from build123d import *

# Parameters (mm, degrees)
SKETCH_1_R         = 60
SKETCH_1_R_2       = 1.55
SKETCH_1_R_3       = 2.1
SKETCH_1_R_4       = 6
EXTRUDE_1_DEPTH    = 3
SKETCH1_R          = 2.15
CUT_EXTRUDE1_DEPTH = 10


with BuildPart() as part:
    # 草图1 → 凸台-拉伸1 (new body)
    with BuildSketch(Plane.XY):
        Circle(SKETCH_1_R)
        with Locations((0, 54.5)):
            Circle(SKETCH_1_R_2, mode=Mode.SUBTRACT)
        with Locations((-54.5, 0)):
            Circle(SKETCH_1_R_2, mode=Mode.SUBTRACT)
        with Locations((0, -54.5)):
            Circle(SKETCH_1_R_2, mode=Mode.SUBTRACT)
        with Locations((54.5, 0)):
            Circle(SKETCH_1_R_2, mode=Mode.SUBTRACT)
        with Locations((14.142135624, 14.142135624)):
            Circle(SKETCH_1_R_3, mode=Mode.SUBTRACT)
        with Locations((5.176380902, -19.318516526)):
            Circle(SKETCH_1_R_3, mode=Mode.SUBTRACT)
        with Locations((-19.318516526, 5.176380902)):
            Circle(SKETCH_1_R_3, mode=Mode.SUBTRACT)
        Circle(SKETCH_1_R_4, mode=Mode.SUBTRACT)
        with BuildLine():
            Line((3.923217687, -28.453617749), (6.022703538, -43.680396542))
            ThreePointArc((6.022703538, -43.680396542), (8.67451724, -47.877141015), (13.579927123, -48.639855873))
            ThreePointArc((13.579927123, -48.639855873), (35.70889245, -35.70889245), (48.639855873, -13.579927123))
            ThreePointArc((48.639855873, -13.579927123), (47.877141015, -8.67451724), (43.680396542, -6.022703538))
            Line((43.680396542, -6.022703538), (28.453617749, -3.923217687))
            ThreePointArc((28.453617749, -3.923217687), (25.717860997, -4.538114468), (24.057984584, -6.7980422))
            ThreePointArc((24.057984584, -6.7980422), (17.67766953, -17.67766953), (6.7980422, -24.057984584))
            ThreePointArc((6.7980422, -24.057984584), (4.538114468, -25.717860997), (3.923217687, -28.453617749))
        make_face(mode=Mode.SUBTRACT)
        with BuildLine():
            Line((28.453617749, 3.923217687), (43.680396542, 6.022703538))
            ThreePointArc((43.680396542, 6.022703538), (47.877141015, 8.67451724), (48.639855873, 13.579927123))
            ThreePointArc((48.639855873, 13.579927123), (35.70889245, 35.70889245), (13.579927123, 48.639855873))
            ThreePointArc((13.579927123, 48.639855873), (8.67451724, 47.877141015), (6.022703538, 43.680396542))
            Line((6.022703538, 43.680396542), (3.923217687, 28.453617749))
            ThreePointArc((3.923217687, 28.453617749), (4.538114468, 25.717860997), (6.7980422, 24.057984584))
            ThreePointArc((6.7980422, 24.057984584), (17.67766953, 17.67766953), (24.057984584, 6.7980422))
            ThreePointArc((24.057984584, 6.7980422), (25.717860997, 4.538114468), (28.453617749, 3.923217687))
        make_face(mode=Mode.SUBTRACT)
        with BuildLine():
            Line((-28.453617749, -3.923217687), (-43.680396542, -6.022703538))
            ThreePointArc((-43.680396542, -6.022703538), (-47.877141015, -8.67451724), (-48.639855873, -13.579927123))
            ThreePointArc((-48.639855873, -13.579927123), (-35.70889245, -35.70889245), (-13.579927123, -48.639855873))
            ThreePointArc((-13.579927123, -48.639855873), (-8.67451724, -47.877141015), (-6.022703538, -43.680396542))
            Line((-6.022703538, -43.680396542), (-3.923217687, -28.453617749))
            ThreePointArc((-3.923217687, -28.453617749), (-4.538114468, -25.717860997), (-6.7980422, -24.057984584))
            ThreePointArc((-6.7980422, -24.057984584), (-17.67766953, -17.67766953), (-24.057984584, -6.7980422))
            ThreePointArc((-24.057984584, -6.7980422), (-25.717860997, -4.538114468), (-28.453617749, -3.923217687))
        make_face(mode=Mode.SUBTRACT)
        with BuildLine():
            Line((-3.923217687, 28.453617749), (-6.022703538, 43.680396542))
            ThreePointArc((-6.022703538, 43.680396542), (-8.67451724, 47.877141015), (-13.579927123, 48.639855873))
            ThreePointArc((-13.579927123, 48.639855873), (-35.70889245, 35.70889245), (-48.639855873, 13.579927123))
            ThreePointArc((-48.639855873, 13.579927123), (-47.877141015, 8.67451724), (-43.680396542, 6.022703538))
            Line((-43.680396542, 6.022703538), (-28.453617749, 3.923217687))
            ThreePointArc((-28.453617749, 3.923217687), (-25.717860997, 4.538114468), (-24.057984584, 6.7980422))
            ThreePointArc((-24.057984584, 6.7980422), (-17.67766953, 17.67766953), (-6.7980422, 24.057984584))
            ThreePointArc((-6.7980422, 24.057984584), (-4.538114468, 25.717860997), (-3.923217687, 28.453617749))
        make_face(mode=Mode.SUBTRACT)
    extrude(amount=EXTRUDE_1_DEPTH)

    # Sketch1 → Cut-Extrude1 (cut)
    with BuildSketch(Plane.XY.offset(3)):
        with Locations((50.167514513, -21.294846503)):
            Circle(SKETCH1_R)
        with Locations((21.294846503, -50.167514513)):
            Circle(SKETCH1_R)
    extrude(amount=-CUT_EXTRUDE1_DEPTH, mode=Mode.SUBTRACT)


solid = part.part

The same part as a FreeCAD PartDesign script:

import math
import FreeCAD as App
import Part
import Sketcher
from FreeCAD import Vector
Q = App.Units.Quantity

doc = App.newDocument("Part")
body = doc.addObject("PartDesign::Body", "Body")

# Sketch on XY plane
sketch1 = body.newObject("Sketcher::SketchObject", "Sketch")
sketch1.AttachmentSupport = (doc.getObject("XY_Plane"), [""])
sketch1.MapMode = "FlatFace"
sketch1.addGeometry([
    Part.Circle(Vector(0, 0, 0), Vector(0, 0, 1), 60),  # 0
    Part.LineSegment(Vector(-43.7, -6, 0), Vector(-28.5, -3.9, 0)),  # 1
    Part.ArcOfCircle(Part.Circle(Vector(-27.9, -7.9, 0), Vector(0, 0, 1), 4), math.radians(16), math.radians(98)),  # 2
    Part.ArcOfCircle(Part.Circle(Vector(0, 0, 0), Vector(0, 0, 1), 25), math.radians(-164), math.radians(-106)),  # 3
    Part.ArcOfCircle(Part.Circle(Vector(-7.9, -27.9, 0), Vector(0, 0, 1), 4), math.radians(-8), math.radians(74)),  # 4
    Part.LineSegment(Vector(-3.9, -28.5, 0), Vector(-6, -43.7, 0)),  # 5
    Part.ArcOfCircle(Part.Circle(Vector(-12, -42.9, 0), Vector(0, 0, 1), 6), math.radians(-106), math.radians(-8)),  # 6
    Part.ArcOfCircle(Part.Circle(Vector(0, 0, 0), Vector(0, 0, 1), 50.5), math.radians(-164), math.radians(-106)),  # 7
    Part.ArcOfCircle(Part.Circle(Vector(-42.9, -12, 0), Vector(0, 0, 1), 6), math.radians(98), math.radians(196)),  # 8
    Part.Circle(Vector(0, -54.5, 0), Vector(0, 0, 1), 1.6),  # 9
    Part.Circle(Vector(5.2, -19.3, 0), Vector(0, 0, 1), 2.1),  # 10
    Part.LineSegment(Vector(6, -43.7, 0), Vector(3.9, -28.5, 0)),  # 11
    Part.ArcOfCircle(Part.Circle(Vector(7.9, -27.9, 0), Vector(0, 0, 1), 4), math.radians(106), math.radians(188)),  # 12
    Part.ArcOfCircle(Part.Circle(Vector(0, 0, 0), Vector(0, 0, 1), 25), math.radians(-74), math.radians(-16)),  # 13
    Part.ArcOfCircle(Part.Circle(Vector(27.9, -7.9, 0), Vector(0, 0, 1), 4), math.radians(82), math.radians(164)),  # 14
    Part.LineSegment(Vector(28.5, -3.9, 0), Vector(43.7, -6, 0)),  # 15
    Part.ArcOfCircle(Part.Circle(Vector(42.9, -12, 0), Vector(0, 0, 1), 6), math.radians(-16), math.radians(82)),  # 16
    Part.ArcOfCircle(Part.Circle(Vector(0, 0, 0), Vector(0, 0, 1), 50.5), math.radians(-74), math.radians(-16)),  # 17
    Part.ArcOfCircle(Part.Circle(Vector(12, -42.9, 0), Vector(0, 0, 1), 6), math.radians(-172), math.radians(-74)),  # 18
    Part.Circle(Vector(-54.5, 0, 0), Vector(0, 0, 1), 1.6),  # 19
    Part.Circle(Vector(-19.3, 5.2, 0), Vector(0, 0, 1), 2.1),  # 20
    Part.LineSegment(Vector(-6, 43.7, 0), Vector(-3.9, 28.5, 0)),  # 21
    Part.ArcOfCircle(Part.Circle(Vector(-7.9, 27.9, 0), Vector(0, 0, 1), 4), math.radians(-74), math.radians(8)),  # 22
    Part.ArcOfCircle(Part.Circle(Vector(0, 0, 0), Vector(0, 0, 1), 25), math.radians(106), math.radians(164)),  # 23
    Part.ArcOfCircle(Part.Circle(Vector(-27.9, 7.9, 0), Vector(0, 0, 1), 4), math.radians(-98), math.radians(-16)),  # 24
    Part.LineSegment(Vector(-28.5, 3.9, 0), Vector(-43.7, 6, 0)),  # 25
    Part.ArcOfCircle(Part.Circle(Vector(-42.9, 12, 0), Vector(0, 0, 1), 6), math.radians(164), math.radians(262)),  # 26
    Part.ArcOfCircle(Part.Circle(Vector(0, 0, 0), Vector(0, 0, 1), 50.5), math.radians(106), math.radians(164)),  # 27
    Part.ArcOfCircle(Part.Circle(Vector(-12, 42.9, 0), Vector(0, 0, 1), 6), math.radians(8), math.radians(106)),  # 28
    Part.Circle(Vector(0, 0, 0), Vector(0, 0, 1), 6),  # 29
    Part.Circle(Vector(14.1, 14.1, 0), Vector(0, 0, 1), 2.1),  # 30
    Part.LineSegment(Vector(43.7, 6, 0), Vector(28.5, 3.9, 0)),  # 31
    Part.ArcOfCircle(Part.Circle(Vector(27.9, 7.9, 0), Vector(0, 0, 1), 4), math.radians(-164), math.radians(-82)),  # 32
    Part.ArcOfCircle(Part.Circle(Vector(0, 0, 0), Vector(0, 0, 1), 25), math.radians(16), math.radians(74)),  # 33
    Part.ArcOfCircle(Part.Circle(Vector(7.9, 27.9, 0), Vector(0, 0, 1), 4), math.radians(172), math.radians(254)),  # 34
    Part.LineSegment(Vector(3.9, 28.5, 0), Vector(6, 43.7, 0)),  # 35
    Part.ArcOfCircle(Part.Circle(Vector(12, 42.9, 0), Vector(0, 0, 1), 6), math.radians(74), math.radians(172)),  # 36
    Part.ArcOfCircle(Part.Circle(Vector(0, 0, 0), Vector(0, 0, 1), 50.5), math.radians(16), math.radians(74)),  # 37
    Part.ArcOfCircle(Part.Circle(Vector(42.9, 12, 0), Vector(0, 0, 1), 6), math.radians(-82), math.radians(16)),  # 38
    Part.Circle(Vector(54.5, 0, 0), Vector(0, 0, 1), 1.6),  # 39
    Part.Circle(Vector(0, 54.5, 0), Vector(0, 0, 1), 1.6),  # 40
], False)
sketch1.addConstraint([
    Sketcher.Constraint("Tangent", 1, 2, 2, 2),
    Sketcher.Constraint("Tangent", 2, 1, 3, 1),
    Sketcher.Constraint("Tangent", 3, 2, 4, 2),
    Sketcher.Constraint("Tangent", 4, 1, 5, 1),
    Sketcher.Constraint("Tangent", 5, 2, 6, 2),
    Sketcher.Constraint("Tangent", 6, 1, 7, 2),
    Sketcher.Constraint("Tangent", 7, 1, 8, 2),
    Sketcher.Constraint("Tangent", 8, 1, 1, 1),
    Sketcher.Constraint("Tangent", 11, 2, 12, 2),
    Sketcher.Constraint("Tangent", 12, 1, 13, 1),
    Sketcher.Constraint("Tangent", 13, 2, 14, 2),
    Sketcher.Constraint("Tangent", 14, 1, 15, 1),
    Sketcher.Constraint("Tangent", 15, 2, 16, 2),
    Sketcher.Constraint("Tangent", 16, 1, 17, 2),
    Sketcher.Constraint("Tangent", 17, 1, 18, 2),
    Sketcher.Constraint("Tangent", 18, 1, 11, 1),
    Sketcher.Constraint("Tangent", 21, 2, 22, 2),
    Sketcher.Constraint("Tangent", 22, 1, 23, 1),
    Sketcher.Constraint("Tangent", 23, 2, 24, 2),
    Sketcher.Constraint("Tangent", 24, 1, 25, 1),
    Sketcher.Constraint("Tangent", 25, 2, 26, 2),
    Sketcher.Constraint("Tangent", 26, 1, 27, 2),
    Sketcher.Constraint("Tangent", 27, 1, 28, 2),
    Sketcher.Constraint("Tangent", 28, 1, 21, 1),
    Sketcher.Constraint("Tangent", 31, 2, 32, 2),
    Sketcher.Constraint("Tangent", 32, 1, 33, 1),
    Sketcher.Constraint("Tangent", 33, 2, 34, 2),
    Sketcher.Constraint("Tangent", 34, 1, 35, 1),
    Sketcher.Constraint("Tangent", 35, 2, 36, 2),
    Sketcher.Constraint("Tangent", 36, 1, 37, 2),
    Sketcher.Constraint("Tangent", 37, 1, 38, 2),
    Sketcher.Constraint("Tangent", 38, 1, 31, 1),
    Sketcher.Constraint("Coincident", 0, 3, -1, 1),
    Sketcher.Constraint("Coincident", 3, 3, -1, 1),
    Sketcher.Constraint("Coincident", 7, 3, -1, 1),
    Sketcher.Constraint("Coincident", 13, 3, -1, 1),
    Sketcher.Constraint("Coincident", 17, 3, -1, 1),
    Sketcher.Constraint("Coincident", 23, 3, -1, 1),
    Sketcher.Constraint("Coincident", 27, 3, -1, 1),
    Sketcher.Constraint("Coincident", 29, 3, -1, 1),
    Sketcher.Constraint("Coincident", 33, 3, -1, 1),
    Sketcher.Constraint("Coincident", 37, 3, -1, 1),
    Sketcher.Constraint("Equal", 2, 4),
    Sketcher.Constraint("Equal", 6, 8),
    Sketcher.Constraint("Equal", 4, 12),
    Sketcher.Constraint("Equal", 3, 13),
    Sketcher.Constraint("Equal", 12, 14),
    Sketcher.Constraint("Equal", 8, 16),
    Sketcher.Constraint("Equal", 7, 17),
    Sketcher.Constraint("Equal", 16, 18),
    Sketcher.Constraint("Equal", 9, 19),
    Sketcher.Constraint("Equal", 10, 20),
    Sketcher.Constraint("Equal", 14, 22),
    Sketcher.Constraint("Equal", 13, 23),
    Sketcher.Constraint("Equal", 22, 24),
    Sketcher.Constraint("Equal", 18, 26),
    Sketcher.Constraint("Equal", 17, 27),
    Sketcher.Constraint("Equal", 26, 28),
    Sketcher.Constraint("Equal", 28, 29),
    Sketcher.Constraint("Equal", 20, 30),
    Sketcher.Constraint("Equal", 24, 32),
    Sketcher.Constraint("Equal", 23, 33),
    Sketcher.Constraint("Equal", 32, 34),
    Sketcher.Constraint("Equal", 29, 36),
    Sketcher.Constraint("Equal", 27, 37),
    Sketcher.Constraint("Equal", 36, 38),
    Sketcher.Constraint("Equal", 19, 39),
    Sketcher.Constraint("Equal", 39, 40),
    Sketcher.Constraint("Symmetric", 19, 3, 39, 3, -1, 1),
    Sketcher.Constraint("Symmetric", 9, 3, 40, 3, -1, 1),
    Sketcher.Constraint("Symmetric", 11, 2, 21, 2, -1, 1),
    Sketcher.Constraint("Symmetric", 14, 1, 24, 1, -1, 1),
    Sketcher.Constraint("Symmetric", 1, 2, 31, 2, -1, 1),
    Sketcher.Constraint("Symmetric", 4, 1, 34, 1, -1, 1),
    Sketcher.Constraint("Symmetric", 4, 1, 11, 2, -2),
    Sketcher.Constraint("Symmetric", 1, 2, 14, 1, -2),
    Sketcher.Constraint("PointOnObject", 9, 3, -2),
    Sketcher.Constraint("PointOnObject", 19, 3, -1),
    Sketcher.Constraint("Perpendicular", 1, 11),
    Sketcher.Constraint("Diameter", 0, Q("120 mm")),
    Sketcher.Constraint("Diameter", 29, Q("12 mm")),
    Sketcher.Constraint("Radius", 2, Q("4 mm")),
    Sketcher.Constraint("Radius", 3, Q("25 mm")),
    Sketcher.Constraint("Diameter", 9, Q("3.1 mm")),
    Sketcher.Constraint("Diameter", 10, Q("4.2 mm")),
    Sketcher.Constraint("Radius", 7, Q("50.5 mm")),
    Sketcher.Constraint("DistanceY", 9, 3, -1, 1, Q("54.5 mm")),
    Sketcher.Constraint("DistanceX", 19, 3, -1, 1, Q("54.5 mm")),
    Sketcher.Constraint("DistanceY", 2, 3, -1, 1, Q("7.885729 mm")),
    Sketcher.Constraint("DistanceX", 4, 3, -1, 1, Q("7.885729 mm")),
    Sketcher.Constraint("DistanceX", 6, 3, -1, 1, Q("11.96647 mm")),
    Sketcher.Constraint("DistanceX", -1, 1, 10, 3, Q("5.176381 mm")),
    Sketcher.Constraint("DistanceY", -1, 1, 20, 3, Q("5.176381 mm")),
    Sketcher.Constraint("DistanceY", 10, 3, -1, 1, Q("19.318517 mm")),
    Sketcher.Constraint("DistanceX", 20, 3, -1, 1, Q("19.318517 mm")),
    Sketcher.Constraint("DistanceX", -1, 1, 30, 3, Q("14.142136 mm")),
    Sketcher.Constraint("DistanceY", -1, 1, 30, 3, Q("14.142136 mm")),
])
pad1 = body.newObject("PartDesign::Pad", "Pad")
pad1.Profile = sketch1
pad1.Length = 3

# Sketch on XY plane
sketch2 = body.newObject("Sketcher::SketchObject", "Sketch001")
sketch2.AttachmentSupport = (doc.getObject("XY_Plane"), [""])
sketch2.MapMode = "FlatFace"
sketch2.AttachmentOffset = App.Placement(Vector(0, 0, 3), App.Rotation())
sketch2.addGeometry([
    Part.Circle(Vector(50.2, -21.3, 0), Vector(0, 0, 1), 2.1),
    Part.Circle(Vector(21.3, -50.2, 0), Vector(0, 0, 1), 2.1),
], False)
sketch2.addConstraint([
    Sketcher.Constraint("Equal", 0, 1),
    Sketcher.Constraint("Diameter", 0, Q("4.3 mm")),
    Sketcher.Constraint("DistanceX", 1, 3, 0, 3, Q("28.872668 mm")),
    Sketcher.Constraint("DistanceY", 1, 3, 0, 3, Q("28.872668 mm")),
    Sketcher.Constraint("DistanceX", -1, 1, 0, 3, Q("50.167515 mm")),
    Sketcher.Constraint("DistanceY", 0, 3, -1, 1, Q("21.294847 mm")),
])
pocket1 = body.newObject("PartDesign::Pocket", "Pocket")
pocket1.Profile = sketch2
pocket1.Length = 10

doc.recompute()
